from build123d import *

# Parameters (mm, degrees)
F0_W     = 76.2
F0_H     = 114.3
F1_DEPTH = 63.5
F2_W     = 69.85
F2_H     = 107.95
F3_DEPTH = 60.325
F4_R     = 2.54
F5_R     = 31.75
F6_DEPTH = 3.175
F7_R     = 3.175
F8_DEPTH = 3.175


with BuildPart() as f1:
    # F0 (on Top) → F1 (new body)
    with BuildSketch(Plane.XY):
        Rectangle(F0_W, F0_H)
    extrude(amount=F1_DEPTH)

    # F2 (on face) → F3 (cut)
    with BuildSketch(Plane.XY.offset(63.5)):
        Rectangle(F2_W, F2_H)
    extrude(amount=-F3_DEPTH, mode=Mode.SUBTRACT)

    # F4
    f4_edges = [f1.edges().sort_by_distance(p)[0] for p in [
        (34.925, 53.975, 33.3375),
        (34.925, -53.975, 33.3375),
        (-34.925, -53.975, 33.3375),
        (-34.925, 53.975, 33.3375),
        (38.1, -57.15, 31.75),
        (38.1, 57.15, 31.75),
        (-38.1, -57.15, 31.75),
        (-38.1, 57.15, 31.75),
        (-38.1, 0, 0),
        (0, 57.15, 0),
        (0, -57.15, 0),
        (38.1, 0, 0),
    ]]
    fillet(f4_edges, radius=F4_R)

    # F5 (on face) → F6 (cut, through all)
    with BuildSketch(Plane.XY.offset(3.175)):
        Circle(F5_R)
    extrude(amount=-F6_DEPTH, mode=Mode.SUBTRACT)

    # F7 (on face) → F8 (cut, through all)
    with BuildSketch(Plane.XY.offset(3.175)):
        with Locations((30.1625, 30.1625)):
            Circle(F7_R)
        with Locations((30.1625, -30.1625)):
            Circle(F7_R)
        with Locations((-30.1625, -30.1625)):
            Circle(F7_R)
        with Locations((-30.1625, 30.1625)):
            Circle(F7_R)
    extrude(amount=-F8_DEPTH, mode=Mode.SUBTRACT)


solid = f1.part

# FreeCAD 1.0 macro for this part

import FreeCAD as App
import Part
import Sketcher
from FreeCAD import Vector
Q = App.Units.Quantity


def edges_at(feature, points):
    """Names of the edges that pass closest to the given points."""
    edges = feature.Shape.Edges
    near = lambda p: min(range(len(edges)), key=lambda i: edges[i].distToShape(Part.Vertex(*p))[0])
    return sorted({f"Edge{near(p) + 1}" for p in points})

doc = App.newDocument("Part")
body = doc.addObject("PartDesign::Body", "Body")

# Sketch on XY plane
sketch1 = body.newObject("Sketcher::SketchObject", "Sketch")
sketch1.AttachmentSupport = (doc.getObject("XY_Plane"), [""])
sketch1.MapMode = "FlatFace"
sketch1.addGeometry(Part.LineSegment(Vector(-38.1, 57.15, 0), Vector(-38.1, -57.15, 0)), False)
sketch1.addGeometry(Part.LineSegment(Vector(-38.1, -57.15, 0), Vector(38.1, -57.15, 0)), False)
sketch1.addGeometry(Part.LineSegment(Vector(38.1, -57.15, 0), Vector(38.1, 57.15, 0)), False)
sketch1.addGeometry(Part.LineSegment(Vector(38.1, 57.15, 0), Vector(-38.1, 57.15, 0)), False)
sketch1.addConstraint(Sketcher.Constraint("Coincident", 0, 2, 1, 1))
sketch1.addConstraint(Sketcher.Constraint("Coincident", 1, 2, 2, 1))
sketch1.addConstraint(Sketcher.Constraint("Coincident", 2, 2, 3, 1))
sketch1.addConstraint(Sketcher.Constraint("Coincident", 3, 2, 0, 1))
sketch1.addConstraint(Sketcher.Constraint("Vertical", 0))
sketch1.addConstraint(Sketcher.Constraint("Horizontal", 1))
sketch1.addConstraint(Sketcher.Constraint("Vertical", 2))
sketch1.addConstraint(Sketcher.Constraint("Horizontal", 3))
sketch1.addConstraint(Sketcher.Constraint("Symmetric", 0, 2, 2, 2, -1, 1))
sketch1.addConstraint(Sketcher.Constraint("DistanceX", 1, 1, 1, 2, Q("3 in")))
sketch1.addConstraint(Sketcher.Constraint("DistanceY", 0, 2, 0, 1, Q("4.5 in")))
pad1 = body.newObject("PartDesign::Pad", "Pad")
pad1.Profile = sketch1
pad1.Length = Q("2.5 in")

# Sketch on XY plane
sketch2 = body.newObject("Sketcher::SketchObject", "Sketch001")
sketch2.AttachmentSupport = (doc.getObject("XY_Plane"), [""])
sketch2.MapMode = "FlatFace"
sketch2.AttachmentOffset = App.Placement(Vector(0, 0, 2.5 * 25.4), App.Rotation())
sketch2.addGeometry(Part.LineSegment(Vector(-34.925, 53.975, 0), Vector(-34.925, -53.975, 0)), False)
sketch2.addGeometry(Part.LineSegment(Vector(-34.925, -53.975, 0), Vector(34.925, -53.975, 0)), False)
sketch2.addGeometry(Part.LineSegment(Vector(34.925, -53.975, 0), Vector(34.925, 53.975, 0)), False)
sketch2.addGeometry(Part.LineSegment(Vector(34.925, 53.975, 0), Vector(-34.925, 53.975, 0)), False)
sketch2.addConstraint(Sketcher.Constraint("Coincident", 0, 2, 1, 1))
sketch2.addConstraint(Sketcher.Constraint("Coincident", 1, 2, 2, 1))
sketch2.addConstraint(Sketcher.Constraint("Coincident", 2, 2, 3, 1))
sketch2.addConstraint(Sketcher.Constraint("Coincident", 3, 2, 0, 1))
sketch2.addConstraint(Sketcher.Constraint("Vertical", 0))
sketch2.addConstraint(Sketcher.Constraint("Horizontal", 1))
sketch2.addConstraint(Sketcher.Constraint("Vertical", 2))
sketch2.addConstraint(Sketcher.Constraint("Horizontal", 3))
sketch2.addConstraint(Sketcher.Constraint("Symmetric", 0, 2, 2, 2, -1, 1))
sketch2.addConstraint(Sketcher.Constraint("DistanceX", 1, 1, 1, 2, Q("2.75 in")))
sketch2.addConstraint(Sketcher.Constraint("DistanceY", 0, 2, 0, 1, Q("4.25 in")))
pocket1 = body.newObject("PartDesign::Pocket", "Pocket")
pocket1.Profile = sketch2
pocket1.Length = Q("2.375 in")
doc.recompute()

fillet = body.newObject("PartDesign::Fillet", "Fillet")
fillet.Base = (pocket1, edges_at(pocket1, [
    (34.925, 53.975, 33.337),
    (34.925, -53.975, 33.337),
    (-34.925, -53.975, 33.337),
    (-34.925, 53.975, 33.337),
    (38.1, -57.15, 31.75),
    (38.1, 57.15, 31.75),
    (-38.1, -57.15, 31.75),
    (-38.1, 57.15, 31.75),
    (-38.1, 0, 0),
    (0, 57.15, 0),
    (0, -57.15, 0),
    (38.1, 0, 0),
]))
fillet.Radius = Q("0.1 in")

# Sketch on XY plane
sketch3 = body.newObject("Sketcher::SketchObject", "Sketch002")
sketch3.AttachmentSupport = (doc.getObject("XY_Plane"), [""])
sketch3.MapMode = "FlatFace"
sketch3.AttachmentOffset = App.Placement(Vector(0, 0, 0.125 * 25.4), App.Rotation())
sketch3.addGeometry(Part.Circle(Vector(0, 0, 0), Vector(0, 0, 1), 31.75), False)
sketch3.addConstraint(Sketcher.Constraint("Coincident", 0, 3, -1, 1))
sketch3.addConstraint(Sketcher.Constraint("Diameter", 0, Q("2.5 in")))
pocket2 = body.newObject("PartDesign::Pocket", "Pocket001")
pocket2.Profile = sketch3
pocket2.Type = "ThroughAll"

# Sketch on XY plane
sketch4 = body.newObject("Sketcher::SketchObject", "Sketch003")
sketch4.AttachmentSupport = (doc.getObject("XY_Plane"), [""])
sketch4.MapMode = "FlatFace"
sketch4.AttachmentOffset = App.Placement(Vector(0, 0, 0.125 * 25.4), App.Rotation())
sketch4.addGeometry(Part.Circle(Vector(30.1625, 30.1625, 0), Vector(0, 0, 1), 3.175), False)
sketch4.addGeometry(Part.Circle(Vector(30.1625, -30.1625, 0), Vector(0, 0, 1), 3.175), False)
sketch4.addGeometry(Part.Circle(Vector(-30.1625, -30.1625, 0), Vector(0, 0, 1), 3.175), False)
sketch4.addGeometry(Part.Circle(Vector(-30.1625, 30.1625, 0), Vector(0, 0, 1), 3.175), False)
sketch4.addConstraint(Sketcher.Constraint("Equal", 0, 1))
sketch4.addConstraint(Sketcher.Constraint("Equal", 1, 2))
sketch4.addConstraint(Sketcher.Constraint("Equal", 2, 3))
sketch4.addConstraint(Sketcher.Constraint("Symmetric", 0, 3, 2, 3, -1, 1))
sketch4.addConstraint(Sketcher.Constraint("Symmetric", 1, 3, 3, 3, -1, 1))
sketch4.addConstraint(Sketcher.Constraint("Symmetric", 1, 3, 2, 3, -2))
sketch4.addConstraint(Sketcher.Constraint("Diameter", 0, Q("0.25 in")))
sketch4.addConstraint(Sketcher.Constraint("DistanceX", -1, 1, 0, 3, Q("1.1875 in")))
sketch4.addConstraint(Sketcher.Constraint("DistanceY", -1, 1, 0, 3, Q("1.1875 in")))
pocket3 = body.newObject("PartDesign::Pocket", "Pocket002")
pocket3.Profile = sketch4
pocket3.Type = "ThroughAll"

doc.recompute()
